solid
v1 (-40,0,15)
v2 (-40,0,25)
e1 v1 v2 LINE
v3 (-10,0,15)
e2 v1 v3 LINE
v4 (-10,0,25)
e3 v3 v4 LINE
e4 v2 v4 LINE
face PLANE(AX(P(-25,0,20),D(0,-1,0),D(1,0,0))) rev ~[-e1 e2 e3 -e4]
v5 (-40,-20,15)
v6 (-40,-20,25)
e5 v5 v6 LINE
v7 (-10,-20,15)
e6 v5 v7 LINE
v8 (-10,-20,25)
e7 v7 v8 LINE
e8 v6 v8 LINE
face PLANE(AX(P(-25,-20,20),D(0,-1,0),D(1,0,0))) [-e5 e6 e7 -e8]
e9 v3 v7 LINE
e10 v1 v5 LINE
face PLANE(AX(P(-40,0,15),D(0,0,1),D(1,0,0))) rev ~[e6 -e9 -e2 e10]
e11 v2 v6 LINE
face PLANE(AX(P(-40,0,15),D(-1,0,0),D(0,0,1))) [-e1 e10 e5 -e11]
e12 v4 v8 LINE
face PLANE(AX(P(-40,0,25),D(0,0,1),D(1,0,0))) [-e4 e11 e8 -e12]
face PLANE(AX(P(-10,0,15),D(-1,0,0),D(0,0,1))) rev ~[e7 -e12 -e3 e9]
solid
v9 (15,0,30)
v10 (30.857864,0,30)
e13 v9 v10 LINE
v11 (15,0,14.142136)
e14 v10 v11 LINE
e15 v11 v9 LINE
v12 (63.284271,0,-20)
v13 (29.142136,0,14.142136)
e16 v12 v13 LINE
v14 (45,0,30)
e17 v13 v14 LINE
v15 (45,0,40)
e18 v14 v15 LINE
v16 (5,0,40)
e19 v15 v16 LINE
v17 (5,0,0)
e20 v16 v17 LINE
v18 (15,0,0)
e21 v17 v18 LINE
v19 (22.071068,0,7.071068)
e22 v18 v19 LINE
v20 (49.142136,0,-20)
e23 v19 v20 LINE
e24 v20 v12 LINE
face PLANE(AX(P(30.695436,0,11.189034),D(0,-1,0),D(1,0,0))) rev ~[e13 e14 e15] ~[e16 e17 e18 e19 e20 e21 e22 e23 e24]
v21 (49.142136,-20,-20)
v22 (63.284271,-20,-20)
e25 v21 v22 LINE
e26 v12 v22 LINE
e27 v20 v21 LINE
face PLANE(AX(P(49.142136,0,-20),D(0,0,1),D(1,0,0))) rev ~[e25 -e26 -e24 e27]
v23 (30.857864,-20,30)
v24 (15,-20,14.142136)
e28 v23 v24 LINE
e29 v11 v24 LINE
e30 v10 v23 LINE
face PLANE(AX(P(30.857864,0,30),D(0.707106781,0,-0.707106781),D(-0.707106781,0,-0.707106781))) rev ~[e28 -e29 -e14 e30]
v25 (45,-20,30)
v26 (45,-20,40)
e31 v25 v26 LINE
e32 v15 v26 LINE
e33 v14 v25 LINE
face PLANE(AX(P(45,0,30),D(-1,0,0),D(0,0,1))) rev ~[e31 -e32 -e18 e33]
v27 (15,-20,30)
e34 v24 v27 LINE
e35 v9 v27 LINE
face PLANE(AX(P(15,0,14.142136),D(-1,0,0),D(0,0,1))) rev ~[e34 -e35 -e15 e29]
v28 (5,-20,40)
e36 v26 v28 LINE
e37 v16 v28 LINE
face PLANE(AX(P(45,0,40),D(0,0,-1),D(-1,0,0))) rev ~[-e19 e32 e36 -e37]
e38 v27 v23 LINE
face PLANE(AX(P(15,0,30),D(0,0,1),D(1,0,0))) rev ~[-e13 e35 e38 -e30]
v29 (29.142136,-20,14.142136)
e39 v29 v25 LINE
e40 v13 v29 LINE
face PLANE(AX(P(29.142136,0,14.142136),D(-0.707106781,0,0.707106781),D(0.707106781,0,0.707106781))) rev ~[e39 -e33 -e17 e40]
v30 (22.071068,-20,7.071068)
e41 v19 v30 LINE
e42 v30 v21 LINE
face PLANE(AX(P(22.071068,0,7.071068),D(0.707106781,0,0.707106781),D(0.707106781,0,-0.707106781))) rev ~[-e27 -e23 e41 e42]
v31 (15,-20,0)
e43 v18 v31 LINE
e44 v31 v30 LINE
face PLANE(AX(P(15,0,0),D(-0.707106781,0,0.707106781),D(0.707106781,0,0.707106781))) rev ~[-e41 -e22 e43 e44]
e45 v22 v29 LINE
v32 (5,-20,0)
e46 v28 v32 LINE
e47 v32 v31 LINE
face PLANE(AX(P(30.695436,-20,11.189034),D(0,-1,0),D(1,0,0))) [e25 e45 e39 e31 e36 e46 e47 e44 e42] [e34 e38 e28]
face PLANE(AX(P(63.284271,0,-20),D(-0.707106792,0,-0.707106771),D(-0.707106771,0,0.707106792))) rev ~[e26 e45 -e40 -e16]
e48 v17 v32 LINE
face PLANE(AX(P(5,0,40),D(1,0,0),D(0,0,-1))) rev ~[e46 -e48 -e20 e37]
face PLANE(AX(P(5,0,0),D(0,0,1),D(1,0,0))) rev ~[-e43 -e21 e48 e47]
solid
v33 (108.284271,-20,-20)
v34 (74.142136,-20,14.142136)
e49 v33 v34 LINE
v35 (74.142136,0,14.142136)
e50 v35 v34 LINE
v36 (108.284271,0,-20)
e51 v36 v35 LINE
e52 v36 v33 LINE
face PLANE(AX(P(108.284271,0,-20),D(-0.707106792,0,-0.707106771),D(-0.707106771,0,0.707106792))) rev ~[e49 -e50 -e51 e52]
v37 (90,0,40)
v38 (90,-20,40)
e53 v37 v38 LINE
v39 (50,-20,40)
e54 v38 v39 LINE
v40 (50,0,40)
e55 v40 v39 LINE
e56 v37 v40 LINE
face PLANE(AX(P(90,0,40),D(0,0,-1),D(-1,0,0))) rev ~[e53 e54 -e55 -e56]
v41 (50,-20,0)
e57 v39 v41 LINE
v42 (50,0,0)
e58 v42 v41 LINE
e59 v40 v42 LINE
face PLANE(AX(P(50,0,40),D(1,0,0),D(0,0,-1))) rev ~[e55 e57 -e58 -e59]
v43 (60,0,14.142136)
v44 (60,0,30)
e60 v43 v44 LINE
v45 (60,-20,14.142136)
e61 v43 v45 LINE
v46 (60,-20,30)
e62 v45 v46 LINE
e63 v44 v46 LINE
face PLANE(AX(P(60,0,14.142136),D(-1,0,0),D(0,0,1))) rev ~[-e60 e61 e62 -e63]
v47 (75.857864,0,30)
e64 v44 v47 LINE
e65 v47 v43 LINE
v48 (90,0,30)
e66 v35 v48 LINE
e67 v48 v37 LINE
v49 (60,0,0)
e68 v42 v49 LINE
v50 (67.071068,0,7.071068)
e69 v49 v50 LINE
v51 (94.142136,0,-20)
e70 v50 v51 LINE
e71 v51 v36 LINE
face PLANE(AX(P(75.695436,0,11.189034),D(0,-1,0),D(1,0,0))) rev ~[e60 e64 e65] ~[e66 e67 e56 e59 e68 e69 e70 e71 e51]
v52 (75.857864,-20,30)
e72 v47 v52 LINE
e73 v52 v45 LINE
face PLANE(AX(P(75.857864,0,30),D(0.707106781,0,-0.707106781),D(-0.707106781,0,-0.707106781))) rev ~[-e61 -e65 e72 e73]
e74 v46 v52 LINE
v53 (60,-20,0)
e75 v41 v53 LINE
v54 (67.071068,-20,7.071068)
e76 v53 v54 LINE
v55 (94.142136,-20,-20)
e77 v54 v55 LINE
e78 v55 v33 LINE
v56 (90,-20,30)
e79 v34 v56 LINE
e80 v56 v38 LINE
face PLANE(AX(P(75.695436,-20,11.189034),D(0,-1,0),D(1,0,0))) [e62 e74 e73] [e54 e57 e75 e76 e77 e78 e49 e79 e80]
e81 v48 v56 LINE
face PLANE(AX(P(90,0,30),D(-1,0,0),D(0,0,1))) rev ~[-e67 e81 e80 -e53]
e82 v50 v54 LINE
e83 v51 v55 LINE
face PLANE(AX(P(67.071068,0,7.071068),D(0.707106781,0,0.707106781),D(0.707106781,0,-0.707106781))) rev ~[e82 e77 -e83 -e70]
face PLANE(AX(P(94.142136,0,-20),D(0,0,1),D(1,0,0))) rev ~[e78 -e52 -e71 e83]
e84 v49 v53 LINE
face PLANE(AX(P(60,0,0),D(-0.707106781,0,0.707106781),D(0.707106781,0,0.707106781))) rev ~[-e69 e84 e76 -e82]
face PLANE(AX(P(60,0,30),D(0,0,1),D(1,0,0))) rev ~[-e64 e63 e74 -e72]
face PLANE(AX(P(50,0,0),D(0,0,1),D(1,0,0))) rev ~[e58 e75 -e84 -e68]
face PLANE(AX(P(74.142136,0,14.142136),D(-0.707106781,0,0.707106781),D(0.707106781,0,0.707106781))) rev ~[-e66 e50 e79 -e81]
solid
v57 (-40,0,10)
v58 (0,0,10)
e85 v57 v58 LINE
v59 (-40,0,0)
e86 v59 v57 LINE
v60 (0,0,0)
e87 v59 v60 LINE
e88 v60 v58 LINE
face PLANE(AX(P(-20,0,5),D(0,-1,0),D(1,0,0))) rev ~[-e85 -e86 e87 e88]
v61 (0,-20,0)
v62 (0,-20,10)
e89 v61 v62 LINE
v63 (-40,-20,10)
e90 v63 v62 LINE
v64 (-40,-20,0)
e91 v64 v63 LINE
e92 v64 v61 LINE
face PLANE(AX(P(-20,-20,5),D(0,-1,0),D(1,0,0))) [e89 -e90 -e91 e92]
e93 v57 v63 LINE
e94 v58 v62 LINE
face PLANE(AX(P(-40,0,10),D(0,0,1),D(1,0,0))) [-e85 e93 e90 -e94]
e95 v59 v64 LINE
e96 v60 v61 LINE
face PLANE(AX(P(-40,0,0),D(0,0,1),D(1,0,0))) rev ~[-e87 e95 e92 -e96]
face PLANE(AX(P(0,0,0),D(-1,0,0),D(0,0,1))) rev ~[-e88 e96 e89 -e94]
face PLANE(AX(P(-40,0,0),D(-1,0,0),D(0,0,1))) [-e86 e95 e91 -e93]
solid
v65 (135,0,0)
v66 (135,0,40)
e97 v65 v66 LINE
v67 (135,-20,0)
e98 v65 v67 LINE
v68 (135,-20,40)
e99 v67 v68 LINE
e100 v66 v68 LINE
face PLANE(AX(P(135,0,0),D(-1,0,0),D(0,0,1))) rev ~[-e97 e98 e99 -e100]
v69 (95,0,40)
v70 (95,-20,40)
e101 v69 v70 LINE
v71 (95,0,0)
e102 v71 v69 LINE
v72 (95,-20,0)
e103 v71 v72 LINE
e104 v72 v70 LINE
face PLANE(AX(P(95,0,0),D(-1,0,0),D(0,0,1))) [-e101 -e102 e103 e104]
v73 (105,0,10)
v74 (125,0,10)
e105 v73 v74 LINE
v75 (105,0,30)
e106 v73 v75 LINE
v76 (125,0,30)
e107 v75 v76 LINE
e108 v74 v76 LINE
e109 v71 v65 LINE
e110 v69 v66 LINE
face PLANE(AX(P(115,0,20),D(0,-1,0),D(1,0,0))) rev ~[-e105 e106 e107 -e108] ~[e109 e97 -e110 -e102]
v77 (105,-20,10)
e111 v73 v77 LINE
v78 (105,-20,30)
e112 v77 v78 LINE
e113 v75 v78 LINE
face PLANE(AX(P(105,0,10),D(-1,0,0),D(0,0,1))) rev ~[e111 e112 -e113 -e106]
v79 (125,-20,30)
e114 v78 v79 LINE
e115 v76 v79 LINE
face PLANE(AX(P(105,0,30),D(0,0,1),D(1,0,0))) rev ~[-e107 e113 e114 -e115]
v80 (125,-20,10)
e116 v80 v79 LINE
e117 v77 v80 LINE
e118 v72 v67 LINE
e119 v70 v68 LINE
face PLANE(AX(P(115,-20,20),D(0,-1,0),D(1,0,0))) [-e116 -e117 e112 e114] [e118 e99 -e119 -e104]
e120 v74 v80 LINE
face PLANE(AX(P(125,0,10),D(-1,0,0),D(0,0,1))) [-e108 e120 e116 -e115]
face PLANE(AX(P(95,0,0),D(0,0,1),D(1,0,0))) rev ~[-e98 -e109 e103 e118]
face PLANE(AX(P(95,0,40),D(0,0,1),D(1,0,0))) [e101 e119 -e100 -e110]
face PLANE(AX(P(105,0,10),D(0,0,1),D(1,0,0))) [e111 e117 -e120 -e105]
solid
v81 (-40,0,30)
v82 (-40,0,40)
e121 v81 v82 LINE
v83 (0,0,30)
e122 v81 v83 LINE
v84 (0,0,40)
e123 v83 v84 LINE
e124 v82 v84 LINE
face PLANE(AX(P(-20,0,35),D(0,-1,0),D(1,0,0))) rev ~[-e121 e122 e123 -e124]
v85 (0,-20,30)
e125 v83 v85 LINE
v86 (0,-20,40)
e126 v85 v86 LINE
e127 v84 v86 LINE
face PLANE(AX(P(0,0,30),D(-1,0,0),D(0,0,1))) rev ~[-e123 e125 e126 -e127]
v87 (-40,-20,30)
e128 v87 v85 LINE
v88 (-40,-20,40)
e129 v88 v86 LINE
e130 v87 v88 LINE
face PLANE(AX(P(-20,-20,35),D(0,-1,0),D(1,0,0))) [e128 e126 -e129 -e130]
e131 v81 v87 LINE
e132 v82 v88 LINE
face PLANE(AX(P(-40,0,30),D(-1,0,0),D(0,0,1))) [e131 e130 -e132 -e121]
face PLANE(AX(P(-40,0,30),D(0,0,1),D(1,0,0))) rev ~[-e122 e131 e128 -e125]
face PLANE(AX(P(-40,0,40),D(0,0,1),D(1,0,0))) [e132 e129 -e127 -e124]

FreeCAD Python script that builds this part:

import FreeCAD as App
import Part
import Sketcher

doc = App.newDocument("Part")
params = doc.addObject("Spreadsheet::Sheet", "Params")
for row, (alias, value) in enumerate([
    ("sketch1_width", "40 mm"),
    ("sketch1_width2", "30 mm"),
    ("sketch1_width3", "10 mm"),
    ("sketch1_length", "10 mm"),
    ("pad1_length", "20 mm"),
], start=1):
    params.set(f"A{row}", alias)
    params.set(f"B{row}", "=" + value)
    params.setAlias(f"B{row}", alias)

body = doc.addObject("PartDesign::Body", "Body")
body.AllowCompound = True

# Sketch on XZ plane
sketch1 = body.newObject("Sketcher::SketchObject", "Sketch")
sketch1.AttachmentSupport = (doc.getObject("XZ_Plane"), [""])
sketch1.MapMode = "FlatFace"
sketch1.addGeometry(Part.LineSegment(App.Vector(-40, 40, 0), App.Vector(-40, 30, 0)), False)
sketch1.addGeometry(Part.LineSegment(App.Vector(-40, 30, 0), App.Vector(0, 30, 0)), False)
sketch1.addGeometry(Part.LineSegment(App.Vector(0, 30, 0), App.Vector(0, 40, 0)), False)
sketch1.addGeometry(Part.LineSegment(App.Vector(0, 40, 0), App.Vector(-40, 40, 0)), False)
sketch1.addGeometry(Part.LineSegment(App.Vector(-40, 25, 0), App.Vector(-40, 15, 0)), False)
sketch1.addGeometry(Part.LineSegment(App.Vector(-40, 15, 0), App.Vector(-10, 15, 0)), False)
sketch1.addGeometry(Part.LineSegment(App.Vector(-10, 15, 0), App.Vector(-10, 25, 0)), False)
sketch1.addGeometry(Part.LineSegment(App.Vector(-10, 25, 0), App.Vector(-40, 25, 0)), False)
sketch1.addGeometry(Part.LineSegment(App.Vector(-40, 10, 0), App.Vector(-40, 0, 0)), False)
sketch1.addGeometry(Part.LineSegment(App.Vector(-40, 0, 0), App.Vector(0, 0, 0)), False)
sketch1.addGeometry(Part.LineSegment(App.Vector(0, 0, 0), App.Vector(0, 10, 0)), False)
sketch1.addGeometry(Part.LineSegment(App.Vector(0, 10, 0), App.Vector(-40, 10, 0)), False)
sketch1.addGeometry(Part.LineSegment(App.Vector(5, 40, 0), App.Vector(5, 0, 0)), False)
sketch1.addGeometry(Part.LineSegment(App.Vector(5, 0, 0), App.Vector(15, 0, 0)), False)
sketch1.addGeometry(Part.LineSegment(App.Vector(15, 0, 0), App.Vector(22.071068, 7.071068, 0)), False)
sketch1.addGeometry(Part.LineSegment(App.Vector(22.071068, 7.071068, 0), App.Vector(49.142136, -20, 0)), False)
sketch1.addGeometry(Part.LineSegment(App.Vector(49.142136, -20, 0), App.Vector(63.284271, -20, 0)), False)
sketch1.addGeometry(Part.LineSegment(App.Vector(63.284271, -20, 0), App.Vector(29.142136, 14.142136, 0)), False)
sketch1.addGeometry(Part.LineSegment(App.Vector(29.142136, 14.142136, 0), App.Vector(45, 30, 0)), False)
sketch1.addGeometry(Part.LineSegment(App.Vector(45, 30, 0), App.Vector(45, 40, 0)), False)
sketch1.addGeometry(Part.LineSegment(App.Vector(45, 40, 0), App.Vector(5, 40, 0)), False)
sketch1.addGeometry(Part.LineSegment(App.Vector(30.857864, 30, 0), App.Vector(15, 14.142136, 0)), False)
sketch1.addGeometry(Part.LineSegment(App.Vector(15, 14.142136, 0), App.Vector(15, 30, 0)), False)
sketch1.addGeometry(Part.LineSegment(App.Vector(15, 30, 0), App.Vector(30.857864, 30, 0)), False)
sketch1.addGeometry(Part.LineSegment(App.Vector(50, 40, 0), App.Vector(50, 0, 0)), False)
sketch1.addGeometry(Part.LineSegment(App.Vector(50, 0, 0), App.Vector(60, 0, 0)), False)
sketch1.addGeometry(Part.LineSegment(App.Vector(60, 0, 0), App.Vector(67.071068, 7.071068, 0)), False)
sketch1.addGeometry(Part.LineSegment(App.Vector(67.071068, 7.071068, 0), App.Vector(94.142136, -20, 0)), False)
sketch1.addGeometry(Part.LineSegment(App.Vector(94.142136, -20, 0), App.Vector(108.284271, -20, 0)), False)
sketch1.addGeometry(Part.LineSegment(App.Vector(108.284271, -20, 0), App.Vector(74.142136, 14.142136, 0)), False)
sketch1.addGeometry(Part.LineSegment(App.Vector(74.142136, 14.142136, 0), App.Vector(90, 30, 0)), False)
sketch1.addGeometry(Part.LineSegment(App.Vector(90, 30, 0), App.Vector(90, 40, 0)), False)
sketch1.addGeometry(Part.LineSegment(App.Vector(90, 40, 0), App.Vector(50, 40, 0)), False)
sketch1.addGeometry(Part.LineSegment(App.Vector(75.857864, 30, 0), App.Vector(60, 14.142136, 0)), False)
sketch1.addGeometry(Part.LineSegment(App.Vector(60, 14.142136, 0), App.Vector(60, 30, 0)), False)
sketch1.addGeometry(Part.LineSegment(App.Vector(60, 30, 0), App.Vector(75.857864, 30, 0)), False)
sketch1.addGeometry(Part.LineSegment(App.Vector(95, 40, 0), App.Vector(95, 0, 0)), False)
sketch1.addGeometry(Part.LineSegment(App.Vector(95, 0, 0), App.Vector(135, 0, 0)), False)
sketch1.addGeometry(Part.LineSegment(App.Vector(135, 0, 0), App.Vector(135, 40, 0)), False)
sketch1.addGeometry(Part.LineSegment(App.Vector(135, 40, 0), App.Vector(95, 40, 0)), False)
sketch1.addGeometry(Part.LineSegment(App.Vector(125, 10, 0), App.Vector(105, 10, 0)), False)
sketch1.addGeometry(Part.LineSegment(App.Vector(105, 10, 0), App.Vector(105, 30, 0)), False)
sketch1.addGeometry(Part.LineSegment(App.Vector(105, 30, 0), App.Vector(125, 30, 0)), False)
sketch1.addGeometry(Part.LineSegment(App.Vector(125, 30, 0), App.Vector(125, 10, 0)), False)
sketch1.addConstraint(Sketcher.Constraint("Coincident", 0, 2, 1, 1))
sketch1.addConstraint(Sketcher.Constraint("Coincident", 1, 2, 2, 1))
sketch1.addConstraint(Sketcher.Constraint("Coincident", 2, 2, 3, 1))
sketch1.addConstraint(Sketcher.Constraint("Coincident", 3, 2, 0, 1))
sketch1.addConstraint(Sketcher.Constraint("Coincident", 4, 2, 5, 1))
sketch1.addConstraint(Sketcher.Constraint("Coincident", 5, 2, 6, 1))
sketch1.addConstraint(Sketcher.Constraint("Coincident", 6, 2, 7, 1))
sketch1.addConstraint(Sketcher.Constraint("Coincident", 7, 2, 4, 1))
sketch1.addConstraint(Sketcher.Constraint("Coincident", 8, 2, 9, 1))
sketch1.addConstraint(Sketcher.Constraint("Coincident", 9, 2, 10, 1))
sketch1.addConstraint(Sketcher.Constraint("Coincident", 10, 2, 11, 1))
sketch1.addConstraint(Sketcher.Constraint("Coincident", 11, 2, 8, 1))
sketch1.addConstraint(Sketcher.Constraint("Coincident", 12, 2, 13, 1))
sketch1.addConstraint(Sketcher.Constraint("Coincident", 13, 2, 14, 1))
sketch1.addConstraint(Sketcher.Constraint("Coincident", 14, 2, 15, 1))
sketch1.addConstraint(Sketcher.Constraint("Coincident", 15, 2, 16, 1))
sketch1.addConstraint(Sketcher.Constraint("Coincident", 16, 2, 17, 1))
sketch1.addConstraint(Sketcher.Constraint("Coincident", 17, 2, 18, 1))
sketch1.addConstraint(Sketcher.Constraint("Coincident", 18, 2, 19, 1))
sketch1.addConstraint(Sketcher.Constraint("Coincident", 19, 2, 20, 1))
sketch1.addConstraint(Sketcher.Constraint("Coincident", 20, 2, 12, 1))
sketch1.addConstraint(Sketcher.Constraint("Coincident", 21, 2, 22, 1))
sketch1.addConstraint(Sketcher.Constraint("Coincident", 22, 2, 23, 1))
sketch1.addConstraint(Sketcher.Constraint("Coincident", 23, 2, 21, 1))
sketch1.addConstraint(Sketcher.Constraint("Coincident", 24, 2, 25, 1))
sketch1.addConstraint(Sketcher.Constraint("Coincident", 25, 2, 26, 1))
sketch1.addConstraint(Sketcher.Constraint("Coincident", 26, 2, 27, 1))
sketch1.addConstraint(Sketcher.Constraint("Coincident", 27, 2, 28, 1))
sketch1.addConstraint(Sketcher.Constraint("Coincident", 28, 2, 29, 1))
sketch1.addConstraint(Sketcher.Constraint("Coincident", 29, 2, 30, 1))
sketch1.addConstraint(Sketcher.Constraint("Coincident", 30, 2, 31, 1))
sketch1.addConstraint(Sketcher.Constraint("Coincident", 31, 2, 32, 1))
sketch1.addConstraint(Sketcher.Constraint("Coincident", 32, 2, 24, 1))
sketch1.addConstraint(Sketcher.Constraint("Coincident", 33, 2, 34, 1))
sketch1.addConstraint(Sketcher.Constraint("Coincident", 34, 2, 35, 1))
sketch1.addConstraint(Sketcher.Constraint("Coincident", 35, 2, 33, 1))
sketch1.addConstraint(Sketcher.Constraint("Coincident", 36, 2, 37, 1))
sketch1.addConstraint(Sketcher.Constraint("Coincident", 37, 2, 38, 1))
sketch1.addConstraint(Sketcher.Constraint("Coincident", 38, 2, 39, 1))
sketch1.addConstraint(Sketcher.Constraint("Coincident", 39, 2, 36, 1))
sketch1.addConstraint(Sketcher.Constraint("Coincident", 40, 2, 41, 1))
sketch1.addConstraint(Sketcher.Constraint("Coincident", 41, 2, 42, 1))
sketch1.addConstraint(Sketcher.Constraint("Coincident", 42, 2, 43, 1))
sketch1.addConstraint(Sketcher.Constraint("Coincident", 43, 2, 40, 1))
sketch1.addConstraint(Sketcher.Constraint("Vertical", 0))
sketch1.addConstraint(Sketcher.Constraint("Horizontal", 1))
sketch1.addConstraint(Sketcher.Constraint("Vertical", 2))
sketch1.addConstraint(Sketcher.Constraint("Horizontal", 3))
sketch1.addConstraint(Sketcher.Constraint("Vertical", 4))
sketch1.addConstraint(Sketcher.Constraint("Horizontal", 5))
sketch1.addConstraint(Sketcher.Constraint("Vertical", 6))
sketch1.addConstraint(Sketcher.Constraint("Horizontal", 7))
sketch1.addConstraint(Sketcher.Constraint("Vertical", 8))
sketch1.addConstraint(Sketcher.Constraint("Horizontal", 9))
sketch1.addConstraint(Sketcher.Constraint("Vertical", 10))
sketch1.addConstraint(Sketcher.Constraint("Horizontal", 11))
sketch1.addConstraint(Sketcher.Constraint("Vertical", 12))
sketch1.addConstraint(Sketcher.Constraint("Horizontal", 13))
sketch1.addConstraint(Sketcher.Constraint("Horizontal", 16))
sketch1.addConstraint(Sketcher.Constraint("Vertical", 19))
sketch1.addConstraint(Sketcher.Constraint("Horizontal", 20))
sketch1.addConstraint(Sketcher.Constraint("Vertical", 22))
sketch1.addConstraint(Sketcher.Constraint("Horizontal", 23))
sketch1.addConstraint(Sketcher.Constraint("Vertical", 24))
sketch1.addConstraint(Sketcher.Constraint("Horizontal", 25))
sketch1.addConstraint(Sketcher.Constraint("Horizontal", 28))
sketch1.addConstraint(Sketcher.Constraint("Vertical", 31))
sketch1.addConstraint(Sketcher.Constraint("Horizontal", 32))
sketch1.addConstraint(Sketcher.Constraint("Vertical", 34))
sketch1.addConstraint(Sketcher.Constraint("Horizontal", 35))
sketch1.addConstraint(Sketcher.Constraint("Vertical", 36))
sketch1.addConstraint(Sketcher.Constraint("Horizontal", 37))
sketch1.addConstraint(Sketcher.Constraint("Vertical", 38))
sketch1.addConstraint(Sketcher.Constraint("Horizontal", 39))
sketch1.addConstraint(Sketcher.Constraint("Horizontal", 40))
sketch1.addConstraint(Sketcher.Constraint("Vertical", 41))
sketch1.addConstraint(Sketcher.Constraint("Horizontal", 42))
sketch1.addConstraint(Sketcher.Constraint("Vertical", 43))
sketch1.addConstraint(Sketcher.Constraint("Coincident", 9, 2, -1, 1))
sketch1.addConstraint(Sketcher.Constraint("PointOnObject", 1, 2, -2))
sketch1.addConstraint(Sketcher.Constraint("PointOnObject", 12, 2, -1))
sketch1.addConstraint(Sketcher.Constraint("PointOnObject", 24, 2, -1))
sketch1.addConstraint(Sketcher.Constraint("PointOnObject", 36, 2, -1))
sketch1.addConstraint(Sketcher.Constraint("Perpendicular", 14, 15))
sketch1.addConstraint(Sketcher.Constraint("Parallel", 15, 17))
sketch1.addConstraint(Sketcher.Constraint("Perpendicular", 17, 18))
sketch1.addConstraint(Sketcher.Constraint("Parallel", 18, 21))
sketch1.addConstraint(Sketcher.Constraint("Parallel", 21, 26))
sketch1.addConstraint(Sketcher.Constraint("Perpendicular", 26, 27))
sketch1.addConstraint(Sketcher.Constraint("Parallel", 27, 29))
sketch1.addConstraint(Sketcher.Constraint("Perpendicular", 29, 30))
sketch1.addConstraint(Sketcher.Constraint("Parallel", 30, 33))
sketch1.addConstraint(Sketcher.Constraint("Horizontal", 1, 2, 18, 2))
sketch1.addConstraint(Sketcher.Constraint("Horizontal", 3, 2, 19, 2))
sketch1.addConstraint(Sketcher.Constraint("Horizontal", 17, 2, 21, 2))
sketch1.addConstraint(Sketcher.Constraint("Horizontal", 18, 2, 22, 2))
sketch1.addConstraint(Sketcher.Constraint("Horizontal", 14, 2, 26, 2))
sketch1.addConstraint(Sketcher.Constraint("Horizontal", 16, 2, 27, 2))
sketch1.addConstraint(Sketcher.Constraint("Horizontal", 21, 2, 29, 2))
sketch1.addConstraint(Sketcher.Constraint("Horizontal", 23, 2, 30, 2))
sketch1.addConstraint(Sketcher.Constraint("Horizontal", 20, 2, 31, 2))
sketch1.addConstraint(Sketcher.Constraint("Horizontal", 29, 2, 33, 2))
sketch1.addConstraint(Sketcher.Constraint("Horizontal", 30, 2, 34, 2))
sketch1.addConstraint(Sketcher.Constraint("Horizontal", 32, 2, 38, 2))
sketch1.addConstraint(Sketcher.Constraint("Horizontal", 11, 2, 40, 2))
sketch1.addConstraint(Sketcher.Constraint("Horizontal", 35, 2, 41, 2))
sketch1.addConstraint(Sketcher.Constraint("Vertical", 3, 2, 4, 2))
sketch1.addConstraint(Sketcher.Constraint("Vertical", 7, 2, 8, 2))
sketch1.addConstraint(Sketcher.Constraint("Vertical", 13, 2, 21, 2))
sketch1.addConstraint(Sketcher.Constraint("Vertical", 25, 2, 33, 2))
sketch1.addConstraint(Sketcher.Constraint("Equal", 11, 20))
sketch1.addConstraint(Sketcher.Constraint("Equal", 13, 25))
sketch1.addConstraint(Sketcher.Constraint("Equal", 16, 28))
sketch1.addConstraint(Sketcher.Constraint("Equal", 32, 37))
sketch1.addConstraint(Sketcher.Constraint("Equal", 25, 0))
sketch1.addConstraint(Sketcher.Constraint("Equal", 2, 4))
sketch1.addConstraint(Sketcher.Constraint("Equal", 6, 8))
sketch1.addConstraint(Sketcher.Constraint("Equal", 39, 12))
sketch1.addConstraint(Sketcher.Constraint("Equal", 35, 22))
sketch1.addConstraint(Sketcher.Constraint("Equal", 42, 41))
sketch1.addConstraint(Sketcher.Constraint("DistanceX", 1, 1, 1, 2, 40.0))
sketch1.addConstraint(Sketcher.Constraint("DistanceX", 5, 1, 5, 2, 30.0))
sketch1.addConstraint(Sketcher.Constraint("DistanceX", 13, 1, 13, 2, 10.0))
sketch1.addConstraint(Sketcher.Constraint("Distance", 14, 10.0))
sketch1.addConstraint(Sketcher.Constraint("DistanceY", -1, 1, 4, 2, 15.0))
sketch1.addConstraint(Sketcher.Constraint("DistanceX", -1, 1, 12, 2, 5.0))
sketch1.addConstraint(Sketcher.Constraint("DistanceY", 15, 2, -1, 1, 20.0))
sketch1.addConstraint(Sketcher.Constraint("DistanceX", -1, 1, 24, 2, 50.0))
sketch1.addConstraint(Sketcher.Constraint("DistanceX", -1, 1, 36, 2, 95.0))
sketch1.addConstraint(Sketcher.Constraint("DistanceX", -1, 1, 40, 2, 105.0))
sketch1.addConstraint(Sketcher.Constraint("Distance", 17, 48.284271))
sketch1.setExpression("Constraints[120]", "Params.sketch1_width")
sketch1.setExpression("Constraints[121]", "Params.sketch1_width2")
sketch1.setExpression("Constraints[122]", "Params.sketch1_width3")
sketch1.setExpression("Constraints[123]", "Params.sketch1_length")
pad1 = body.newObject("PartDesign::Pad", "Pad")
pad1.Profile = sketch1
pad1.setExpression("Length", "Params.pad1_length")

doc.recompute()
